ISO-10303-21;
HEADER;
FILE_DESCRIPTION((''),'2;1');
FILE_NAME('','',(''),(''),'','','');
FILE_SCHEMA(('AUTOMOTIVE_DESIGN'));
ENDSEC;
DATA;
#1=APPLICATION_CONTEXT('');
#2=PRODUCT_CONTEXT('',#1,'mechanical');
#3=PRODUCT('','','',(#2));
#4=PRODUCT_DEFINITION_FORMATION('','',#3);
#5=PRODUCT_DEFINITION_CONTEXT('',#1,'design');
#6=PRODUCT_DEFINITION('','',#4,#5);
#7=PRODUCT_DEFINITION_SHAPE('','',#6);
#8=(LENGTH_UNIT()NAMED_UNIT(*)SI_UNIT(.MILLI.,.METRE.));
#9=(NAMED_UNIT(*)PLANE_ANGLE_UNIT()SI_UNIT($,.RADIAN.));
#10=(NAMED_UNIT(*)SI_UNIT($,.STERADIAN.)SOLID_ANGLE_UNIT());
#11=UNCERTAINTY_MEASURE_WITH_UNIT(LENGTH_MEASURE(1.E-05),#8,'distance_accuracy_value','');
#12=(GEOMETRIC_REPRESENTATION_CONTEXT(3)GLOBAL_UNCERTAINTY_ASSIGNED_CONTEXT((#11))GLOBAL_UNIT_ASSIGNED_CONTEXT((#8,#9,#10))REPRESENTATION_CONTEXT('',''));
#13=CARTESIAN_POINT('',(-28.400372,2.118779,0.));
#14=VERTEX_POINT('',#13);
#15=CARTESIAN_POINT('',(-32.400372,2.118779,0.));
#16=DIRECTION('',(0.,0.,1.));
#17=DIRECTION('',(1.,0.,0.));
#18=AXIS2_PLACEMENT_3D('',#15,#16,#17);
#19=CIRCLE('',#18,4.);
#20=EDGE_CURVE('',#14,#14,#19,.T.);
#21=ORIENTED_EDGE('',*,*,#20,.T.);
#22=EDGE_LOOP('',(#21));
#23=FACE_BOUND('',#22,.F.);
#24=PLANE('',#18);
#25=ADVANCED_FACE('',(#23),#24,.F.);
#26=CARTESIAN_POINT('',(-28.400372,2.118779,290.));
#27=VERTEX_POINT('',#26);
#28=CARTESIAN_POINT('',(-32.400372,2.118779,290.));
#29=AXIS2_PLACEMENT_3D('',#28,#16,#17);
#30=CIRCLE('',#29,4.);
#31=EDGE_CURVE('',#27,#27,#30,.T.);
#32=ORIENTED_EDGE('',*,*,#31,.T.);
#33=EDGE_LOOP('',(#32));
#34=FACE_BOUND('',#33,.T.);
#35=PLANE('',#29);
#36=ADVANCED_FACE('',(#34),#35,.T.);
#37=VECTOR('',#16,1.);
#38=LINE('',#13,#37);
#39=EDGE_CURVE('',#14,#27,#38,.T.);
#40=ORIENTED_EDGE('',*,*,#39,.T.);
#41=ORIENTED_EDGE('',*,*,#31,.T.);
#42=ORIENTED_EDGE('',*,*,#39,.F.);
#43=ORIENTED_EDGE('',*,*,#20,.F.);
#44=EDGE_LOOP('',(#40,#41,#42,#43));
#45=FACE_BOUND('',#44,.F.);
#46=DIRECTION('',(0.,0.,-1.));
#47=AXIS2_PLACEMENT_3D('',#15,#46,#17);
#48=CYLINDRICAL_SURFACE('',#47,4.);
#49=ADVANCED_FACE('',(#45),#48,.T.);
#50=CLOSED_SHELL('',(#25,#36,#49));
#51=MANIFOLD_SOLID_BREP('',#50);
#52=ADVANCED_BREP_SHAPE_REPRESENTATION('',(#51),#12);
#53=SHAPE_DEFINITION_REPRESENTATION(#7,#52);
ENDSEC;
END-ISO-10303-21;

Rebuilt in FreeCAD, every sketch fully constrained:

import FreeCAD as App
import Part
import Sketcher
from FreeCAD import Vector
Q = App.Units.Quantity

doc = App.newDocument("Part")
params = doc.addObject("Spreadsheet::Sheet", "Params")
for row, (alias, value) in enumerate([
    ("sketch1_diameter", "8 mm"),
    ("pad1_length", "290 mm"),
], start=1):
    params.set(f"A{row}", alias)
    params.set(f"B{row}", "=" + value)
    params.setAlias(f"B{row}", alias)

body = doc.addObject("PartDesign::Body", "Body")

sketch1 = body.newObject("Sketcher::SketchObject", "Sketch")
sketch1.AttachmentSupport = (doc.getObject("XY_Plane"), [""])
sketch1.MapMode = "FlatFace"
sketch1.addGeometry(Part.Circle(Vector(-32.4, 2.1, 0), Vector(0, 0, 1), 4), False)
sketch1.addConstraint([
    Sketcher.Constraint("Diameter", 0, Q("8 mm")),
    Sketcher.Constraint("DistanceX", 0, 3, -1, 1, Q("32.400372 mm")),
    Sketcher.Constraint("DistanceY", -1, 1, 0, 3, Q("2.118779 mm")),
])
sketch1.setExpression("Constraints[0]", "Params.sketch1_diameter")
pad1 = body.newObject("PartDesign::Pad", "Pad")
pad1.Profile = sketch1
pad1.setExpression("Length", "Params.pad1_length")

doc.recompute()
